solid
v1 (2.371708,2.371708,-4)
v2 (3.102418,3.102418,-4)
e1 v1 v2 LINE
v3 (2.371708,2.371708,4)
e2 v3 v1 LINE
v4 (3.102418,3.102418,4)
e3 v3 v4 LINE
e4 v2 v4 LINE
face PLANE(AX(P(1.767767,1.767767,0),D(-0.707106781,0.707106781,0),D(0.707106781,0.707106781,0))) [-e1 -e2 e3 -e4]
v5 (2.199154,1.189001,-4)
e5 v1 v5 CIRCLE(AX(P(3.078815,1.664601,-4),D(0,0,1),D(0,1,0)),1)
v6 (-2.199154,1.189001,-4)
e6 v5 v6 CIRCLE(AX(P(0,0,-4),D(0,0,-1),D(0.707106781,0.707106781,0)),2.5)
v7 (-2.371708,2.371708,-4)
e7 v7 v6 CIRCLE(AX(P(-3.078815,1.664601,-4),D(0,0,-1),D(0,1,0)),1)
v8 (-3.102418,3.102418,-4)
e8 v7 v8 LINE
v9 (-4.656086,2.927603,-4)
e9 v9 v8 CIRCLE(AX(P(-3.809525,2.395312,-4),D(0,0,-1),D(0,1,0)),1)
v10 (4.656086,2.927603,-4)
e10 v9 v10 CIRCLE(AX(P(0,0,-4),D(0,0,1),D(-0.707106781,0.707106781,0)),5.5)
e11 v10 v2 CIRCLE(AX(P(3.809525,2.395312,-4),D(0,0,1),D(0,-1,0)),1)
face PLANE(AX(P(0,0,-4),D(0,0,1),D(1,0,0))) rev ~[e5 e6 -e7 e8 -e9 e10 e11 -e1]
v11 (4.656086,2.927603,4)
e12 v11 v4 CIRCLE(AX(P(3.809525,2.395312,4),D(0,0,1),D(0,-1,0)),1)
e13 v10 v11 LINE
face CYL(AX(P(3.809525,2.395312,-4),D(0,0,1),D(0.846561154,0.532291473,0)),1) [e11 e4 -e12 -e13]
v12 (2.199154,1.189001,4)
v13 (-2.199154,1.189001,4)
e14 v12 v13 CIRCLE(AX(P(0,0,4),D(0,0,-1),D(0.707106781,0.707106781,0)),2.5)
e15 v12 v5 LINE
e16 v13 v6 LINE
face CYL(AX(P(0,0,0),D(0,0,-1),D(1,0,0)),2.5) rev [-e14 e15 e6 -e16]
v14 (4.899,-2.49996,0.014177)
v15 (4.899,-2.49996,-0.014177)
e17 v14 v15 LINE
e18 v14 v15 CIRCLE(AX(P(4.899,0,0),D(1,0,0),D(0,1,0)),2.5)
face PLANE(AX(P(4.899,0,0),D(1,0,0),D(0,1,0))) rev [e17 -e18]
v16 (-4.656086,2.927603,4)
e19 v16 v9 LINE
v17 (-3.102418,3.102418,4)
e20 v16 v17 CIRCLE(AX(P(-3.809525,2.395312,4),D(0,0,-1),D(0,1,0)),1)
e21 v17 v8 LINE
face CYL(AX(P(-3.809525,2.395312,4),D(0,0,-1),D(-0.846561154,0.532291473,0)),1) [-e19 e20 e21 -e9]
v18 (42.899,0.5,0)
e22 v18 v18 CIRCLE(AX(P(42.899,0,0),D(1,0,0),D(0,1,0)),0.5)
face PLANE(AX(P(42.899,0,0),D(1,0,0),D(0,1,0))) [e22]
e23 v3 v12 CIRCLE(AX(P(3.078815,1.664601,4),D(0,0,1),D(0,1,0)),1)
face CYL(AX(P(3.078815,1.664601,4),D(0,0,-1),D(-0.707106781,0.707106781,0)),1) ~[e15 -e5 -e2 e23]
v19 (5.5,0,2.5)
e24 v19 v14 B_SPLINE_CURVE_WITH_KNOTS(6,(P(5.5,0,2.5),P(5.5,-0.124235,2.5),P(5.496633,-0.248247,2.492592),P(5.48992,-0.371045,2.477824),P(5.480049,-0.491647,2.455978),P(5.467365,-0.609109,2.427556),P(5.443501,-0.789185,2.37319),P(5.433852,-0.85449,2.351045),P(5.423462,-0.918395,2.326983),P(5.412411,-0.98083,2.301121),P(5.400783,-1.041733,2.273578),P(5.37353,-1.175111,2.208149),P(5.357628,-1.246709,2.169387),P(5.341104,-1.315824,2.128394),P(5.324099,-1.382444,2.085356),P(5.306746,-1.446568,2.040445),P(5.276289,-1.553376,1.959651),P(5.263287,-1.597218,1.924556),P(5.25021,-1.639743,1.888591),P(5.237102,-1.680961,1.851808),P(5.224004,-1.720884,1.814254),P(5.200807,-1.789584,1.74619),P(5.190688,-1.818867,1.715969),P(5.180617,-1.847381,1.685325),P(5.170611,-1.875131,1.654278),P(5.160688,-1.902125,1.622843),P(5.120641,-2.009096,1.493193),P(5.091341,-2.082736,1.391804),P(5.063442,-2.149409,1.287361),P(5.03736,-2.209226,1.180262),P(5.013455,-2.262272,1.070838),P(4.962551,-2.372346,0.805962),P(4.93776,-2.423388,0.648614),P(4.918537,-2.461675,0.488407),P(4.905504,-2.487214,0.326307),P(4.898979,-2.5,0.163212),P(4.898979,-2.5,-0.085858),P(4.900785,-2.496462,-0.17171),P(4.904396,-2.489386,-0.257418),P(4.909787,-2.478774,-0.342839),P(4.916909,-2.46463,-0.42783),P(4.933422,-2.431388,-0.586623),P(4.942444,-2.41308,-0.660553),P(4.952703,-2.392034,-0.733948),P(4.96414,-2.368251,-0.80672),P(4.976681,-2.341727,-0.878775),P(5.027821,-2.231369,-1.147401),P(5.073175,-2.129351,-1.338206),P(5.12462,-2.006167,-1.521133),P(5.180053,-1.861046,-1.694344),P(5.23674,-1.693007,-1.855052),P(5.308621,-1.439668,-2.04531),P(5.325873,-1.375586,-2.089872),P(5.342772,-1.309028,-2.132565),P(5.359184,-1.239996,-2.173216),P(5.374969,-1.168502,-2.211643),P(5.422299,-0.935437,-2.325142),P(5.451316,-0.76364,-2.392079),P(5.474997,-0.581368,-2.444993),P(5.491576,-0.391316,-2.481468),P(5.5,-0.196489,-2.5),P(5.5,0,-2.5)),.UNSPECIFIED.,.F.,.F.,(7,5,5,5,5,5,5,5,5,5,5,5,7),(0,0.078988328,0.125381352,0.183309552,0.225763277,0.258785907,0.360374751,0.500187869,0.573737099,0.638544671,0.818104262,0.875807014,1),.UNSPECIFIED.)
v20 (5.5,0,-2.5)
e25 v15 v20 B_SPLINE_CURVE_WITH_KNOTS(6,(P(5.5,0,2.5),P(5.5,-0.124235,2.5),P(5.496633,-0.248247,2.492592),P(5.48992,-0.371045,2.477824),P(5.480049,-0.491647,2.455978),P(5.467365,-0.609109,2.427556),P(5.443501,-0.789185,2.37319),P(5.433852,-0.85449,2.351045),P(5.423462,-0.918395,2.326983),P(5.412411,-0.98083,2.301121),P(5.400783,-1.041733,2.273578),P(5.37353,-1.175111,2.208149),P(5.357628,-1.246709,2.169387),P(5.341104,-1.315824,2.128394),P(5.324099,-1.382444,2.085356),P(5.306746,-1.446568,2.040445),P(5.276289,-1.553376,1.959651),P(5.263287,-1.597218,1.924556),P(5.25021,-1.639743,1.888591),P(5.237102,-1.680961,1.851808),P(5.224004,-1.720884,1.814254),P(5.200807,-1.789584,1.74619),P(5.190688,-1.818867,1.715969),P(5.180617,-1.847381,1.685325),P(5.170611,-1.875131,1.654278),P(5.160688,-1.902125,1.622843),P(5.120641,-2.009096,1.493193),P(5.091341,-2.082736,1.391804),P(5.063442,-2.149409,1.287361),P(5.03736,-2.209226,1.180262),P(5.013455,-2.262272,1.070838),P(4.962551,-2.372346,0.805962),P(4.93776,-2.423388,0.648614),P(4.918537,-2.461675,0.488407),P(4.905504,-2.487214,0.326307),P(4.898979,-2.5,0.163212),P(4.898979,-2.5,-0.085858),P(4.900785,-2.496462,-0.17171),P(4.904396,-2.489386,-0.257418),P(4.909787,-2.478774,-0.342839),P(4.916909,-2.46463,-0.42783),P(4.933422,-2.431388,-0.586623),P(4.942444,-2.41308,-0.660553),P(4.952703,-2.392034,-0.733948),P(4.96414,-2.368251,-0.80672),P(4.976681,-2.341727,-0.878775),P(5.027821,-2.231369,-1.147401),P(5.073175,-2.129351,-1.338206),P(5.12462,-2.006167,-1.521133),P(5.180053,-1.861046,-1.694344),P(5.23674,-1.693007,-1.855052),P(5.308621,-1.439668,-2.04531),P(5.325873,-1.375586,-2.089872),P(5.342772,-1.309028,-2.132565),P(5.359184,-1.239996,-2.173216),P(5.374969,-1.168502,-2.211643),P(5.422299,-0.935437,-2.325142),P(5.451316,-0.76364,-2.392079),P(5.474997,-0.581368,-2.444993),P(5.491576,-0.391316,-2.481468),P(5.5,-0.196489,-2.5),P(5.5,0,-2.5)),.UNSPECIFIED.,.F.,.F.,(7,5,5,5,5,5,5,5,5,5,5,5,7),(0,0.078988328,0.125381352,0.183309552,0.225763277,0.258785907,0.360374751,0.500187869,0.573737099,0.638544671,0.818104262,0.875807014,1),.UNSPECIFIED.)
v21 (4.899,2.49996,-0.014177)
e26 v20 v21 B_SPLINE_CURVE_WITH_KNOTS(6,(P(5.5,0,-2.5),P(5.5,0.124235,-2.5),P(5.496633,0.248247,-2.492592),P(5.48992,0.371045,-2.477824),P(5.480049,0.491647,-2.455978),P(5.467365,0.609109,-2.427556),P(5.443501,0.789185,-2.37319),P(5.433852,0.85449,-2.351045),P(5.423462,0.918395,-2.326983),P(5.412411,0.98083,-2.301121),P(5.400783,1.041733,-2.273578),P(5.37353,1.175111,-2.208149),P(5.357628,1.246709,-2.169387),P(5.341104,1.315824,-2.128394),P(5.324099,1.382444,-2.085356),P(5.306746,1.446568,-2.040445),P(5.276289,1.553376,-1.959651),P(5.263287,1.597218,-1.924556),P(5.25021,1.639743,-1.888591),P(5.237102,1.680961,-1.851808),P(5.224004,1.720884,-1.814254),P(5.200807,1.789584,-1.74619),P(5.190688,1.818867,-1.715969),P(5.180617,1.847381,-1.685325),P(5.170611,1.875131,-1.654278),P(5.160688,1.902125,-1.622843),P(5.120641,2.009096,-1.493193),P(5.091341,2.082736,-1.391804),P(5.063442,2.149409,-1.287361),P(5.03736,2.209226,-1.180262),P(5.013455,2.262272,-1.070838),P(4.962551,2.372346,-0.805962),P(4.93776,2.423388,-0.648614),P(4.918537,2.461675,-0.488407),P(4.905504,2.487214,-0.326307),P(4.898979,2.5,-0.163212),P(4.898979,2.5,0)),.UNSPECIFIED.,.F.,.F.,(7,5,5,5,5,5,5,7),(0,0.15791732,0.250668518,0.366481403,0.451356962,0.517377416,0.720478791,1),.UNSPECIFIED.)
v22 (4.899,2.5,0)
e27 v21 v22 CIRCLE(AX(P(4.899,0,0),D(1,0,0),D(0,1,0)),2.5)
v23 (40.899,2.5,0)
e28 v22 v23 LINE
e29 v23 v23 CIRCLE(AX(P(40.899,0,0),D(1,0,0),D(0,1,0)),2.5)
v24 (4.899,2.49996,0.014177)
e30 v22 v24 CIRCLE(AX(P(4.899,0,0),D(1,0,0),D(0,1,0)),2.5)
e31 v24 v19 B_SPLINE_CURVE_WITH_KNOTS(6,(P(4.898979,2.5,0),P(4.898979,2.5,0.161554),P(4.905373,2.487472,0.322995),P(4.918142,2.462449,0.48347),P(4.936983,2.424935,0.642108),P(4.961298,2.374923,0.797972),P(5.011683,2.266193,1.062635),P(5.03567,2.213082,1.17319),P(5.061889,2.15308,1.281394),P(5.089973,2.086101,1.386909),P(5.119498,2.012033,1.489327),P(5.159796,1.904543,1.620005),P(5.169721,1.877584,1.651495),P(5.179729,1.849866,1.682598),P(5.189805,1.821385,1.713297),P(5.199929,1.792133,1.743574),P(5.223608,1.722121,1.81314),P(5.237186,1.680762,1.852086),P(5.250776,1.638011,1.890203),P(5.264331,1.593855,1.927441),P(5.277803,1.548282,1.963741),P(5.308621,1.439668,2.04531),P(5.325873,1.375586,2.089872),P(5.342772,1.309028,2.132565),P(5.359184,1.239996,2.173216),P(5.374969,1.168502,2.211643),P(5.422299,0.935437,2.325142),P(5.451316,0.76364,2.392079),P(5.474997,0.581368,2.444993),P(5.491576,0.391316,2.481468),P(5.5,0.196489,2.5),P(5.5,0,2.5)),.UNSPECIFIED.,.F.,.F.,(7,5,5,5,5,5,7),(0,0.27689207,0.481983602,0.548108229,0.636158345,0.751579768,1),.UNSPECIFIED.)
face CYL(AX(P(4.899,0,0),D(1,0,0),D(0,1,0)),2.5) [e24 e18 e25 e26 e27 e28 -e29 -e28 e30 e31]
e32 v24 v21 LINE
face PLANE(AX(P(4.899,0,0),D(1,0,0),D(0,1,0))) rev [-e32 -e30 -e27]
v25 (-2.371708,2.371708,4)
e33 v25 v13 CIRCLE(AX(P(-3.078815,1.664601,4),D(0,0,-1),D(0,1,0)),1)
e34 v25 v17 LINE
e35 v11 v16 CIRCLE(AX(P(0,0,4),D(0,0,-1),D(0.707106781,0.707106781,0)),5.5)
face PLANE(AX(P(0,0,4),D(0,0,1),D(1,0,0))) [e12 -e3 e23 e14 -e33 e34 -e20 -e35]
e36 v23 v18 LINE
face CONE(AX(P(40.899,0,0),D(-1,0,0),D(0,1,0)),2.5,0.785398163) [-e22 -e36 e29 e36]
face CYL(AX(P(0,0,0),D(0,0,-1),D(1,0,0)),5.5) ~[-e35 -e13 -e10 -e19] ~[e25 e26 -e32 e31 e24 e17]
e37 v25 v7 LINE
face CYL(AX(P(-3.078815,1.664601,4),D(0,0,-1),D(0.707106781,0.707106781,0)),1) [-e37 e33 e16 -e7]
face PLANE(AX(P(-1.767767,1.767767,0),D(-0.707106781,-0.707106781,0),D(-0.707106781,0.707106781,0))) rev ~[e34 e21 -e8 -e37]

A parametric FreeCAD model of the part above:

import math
import FreeCAD as App
import Part
import Sketcher

V = App.Vector


def edges_at(feature, points):
    """Names of the edges that pass closest to the given points."""
    edges = feature.Shape.Edges
    near = lambda p: min(range(len(edges)), key=lambda i: edges[i].distToShape(Part.Vertex(*p))[0])
    return sorted({f"Edge{near(p) + 1}" for p in points})


def add_polygon(sketch, points):
    """Adds a closed chain of lines whose ends are joined by coincident constraints."""
    first, n = sketch.GeometryCount, len(points)
    for a, b in zip(points, points[1:] + points[:1]):
        sketch.addGeometry(Part.LineSegment(App.Vector(*a, 0), App.Vector(*b, 0)), False)
    for i in range(n):
        sketch.addConstraint(Sketcher.Constraint("Coincident", first + i, 2, first + (i + 1) % n, 1))

doc = App.newDocument("Part")
params = doc.addObject("Spreadsheet::Sheet", "Params")
for row, (alias, value) in enumerate([
    ("sketch1_radius", "2.5 mm"),
    ("sketch1_length", "3 mm"),
    ("pad1_length", "8 mm"),
    ("sketch2_width", "38 mm"),
    ("sketch2_height", "2.5 mm"),
    ("revolution_angle", "360 deg"),
    ("chamfer_size", "2 mm"),
    ("fillet_radius", "1 mm"),
], start=1):
    params.set(f"A{row}", alias)
    params.set(f"B{row}", "=" + value)
    params.setAlias(f"B{row}", alias)

body = doc.addObject("PartDesign::Body", "Body")

# Sketch on XY plane
sketch1 = doc.addObject("Sketcher::SketchObject", "Sketch")
body.addObject(sketch1)
sketch1.AttachmentSupport = (doc.XY_Plane, [""])
sketch1.MapMode = "FlatFace"
sketch1.addGeometry([
    Part.ArcOfCircle(Part.Circle(V(0, 0, 0), V(0, 0, 1), 5.5), math.radians(135), math.radians(405)),
    Part.LineSegment(V(3.9, 3.9, 0), V(1.8, 1.8, 0)),
    Part.ArcOfCircle(Part.Circle(V(0, 0, 0), V(0, 0, 1), 2.5), math.radians(135), math.radians(405)),
    Part.LineSegment(V(-1.8, 1.8, 0), V(-3.9, 3.9, 0)),
], False)
sketch1.addConstraint([
    Sketcher.Constraint("Coincident", 0, 2, 1, 1),
    Sketcher.Constraint("Coincident", 1, 2, 2, 2),
    Sketcher.Constraint("Coincident", 2, 1, 3, 1),
    Sketcher.Constraint("Coincident", 3, 2, 0, 1),
    Sketcher.Constraint("Coincident", 0, 3, -1, 1),
    Sketcher.Constraint("Coincident", 2, 3, -1, 1),
    Sketcher.Constraint("Perpendicular", 1, 3),
    Sketcher.Constraint("Horizontal", 1, 2, 2, 1),
    Sketcher.Constraint("Horizontal", 0, 2, 3, 2),
    Sketcher.Constraint("Radius", 2, 2.5),
    Sketcher.Constraint("Distance", 1, 3.0),
    Sketcher.Constraint("DistanceX", -1, 1, 0, 2, 3.889),
])
sketch1.setExpression("Constraints[9]", "Params.sketch1_radius")
sketch1.setExpression("Constraints[10]", "Params.sketch1_length")
pad1 = doc.addObject("PartDesign::Pad", "Pad")
body.addObject(pad1)
pad1.Profile = sketch1
pad1.setExpression("Length", "Params.pad1_length")
pad1.Midplane = True

# Sketch on XY plane
sketch2 = doc.addObject("Sketcher::SketchObject", "Sketch001")
body.addObject(sketch2)
sketch2.AttachmentSupport = (doc.XY_Plane, [""])
sketch2.MapMode = "FlatFace"
add_polygon(sketch2, [(42.9, 2.5), (4.9, 2.5), (4.9, 0), (42.9, 0)])  # lines 0-3
sketch2.addConstraint([
    Sketcher.Constraint("Horizontal", 0),
    Sketcher.Constraint("Vertical", 1),
    Sketcher.Constraint("Horizontal", 2),
    Sketcher.Constraint("Vertical", 3),
    Sketcher.Constraint("PointOnObject", 1, 2, -1),
    Sketcher.Constraint("DistanceX", 0, 2, 0, 1, 38.0),
    Sketcher.Constraint("DistanceY", 1, 2, 1, 1, 2.5),
    Sketcher.Constraint("DistanceX", -1, 1, 0, 2, 4.899),
])
sketch2.setExpression("Constraints[9]", "Params.sketch2_width")
sketch2.setExpression("Constraints[10]", "Params.sketch2_height")
revolution = doc.addObject("PartDesign::Revolution", "Revolution")
body.addObject(revolution)
revolution.Profile = sketch2
revolution.ReferenceAxis = (sketch2, ["H_Axis"])
revolution.setExpression("Angle", "Params.revolution_angle")
doc.recompute()

chamfer = doc.addObject("PartDesign::Chamfer", "Chamfer")
body.addObject(chamfer)
chamfer.Base = (revolution, edges_at(revolution, [(42.899, -2.5, 0)]))
chamfer.setExpression("Size", "Params.chamfer_size")
doc.recompute()

fillet = doc.addObject("PartDesign::Fillet", "Fillet")
body.addObject(fillet)
fillet.Base = (chamfer, edges_at(chamfer, [
    (-3.889, 3.889, 0),
    (-1.768, 1.768, 0),
    (3.889, 3.889, 0),
    (1.768, 1.768, 0),
]))
fillet.setExpression("Radius", "Params.fillet_radius")

doc.recompute()
